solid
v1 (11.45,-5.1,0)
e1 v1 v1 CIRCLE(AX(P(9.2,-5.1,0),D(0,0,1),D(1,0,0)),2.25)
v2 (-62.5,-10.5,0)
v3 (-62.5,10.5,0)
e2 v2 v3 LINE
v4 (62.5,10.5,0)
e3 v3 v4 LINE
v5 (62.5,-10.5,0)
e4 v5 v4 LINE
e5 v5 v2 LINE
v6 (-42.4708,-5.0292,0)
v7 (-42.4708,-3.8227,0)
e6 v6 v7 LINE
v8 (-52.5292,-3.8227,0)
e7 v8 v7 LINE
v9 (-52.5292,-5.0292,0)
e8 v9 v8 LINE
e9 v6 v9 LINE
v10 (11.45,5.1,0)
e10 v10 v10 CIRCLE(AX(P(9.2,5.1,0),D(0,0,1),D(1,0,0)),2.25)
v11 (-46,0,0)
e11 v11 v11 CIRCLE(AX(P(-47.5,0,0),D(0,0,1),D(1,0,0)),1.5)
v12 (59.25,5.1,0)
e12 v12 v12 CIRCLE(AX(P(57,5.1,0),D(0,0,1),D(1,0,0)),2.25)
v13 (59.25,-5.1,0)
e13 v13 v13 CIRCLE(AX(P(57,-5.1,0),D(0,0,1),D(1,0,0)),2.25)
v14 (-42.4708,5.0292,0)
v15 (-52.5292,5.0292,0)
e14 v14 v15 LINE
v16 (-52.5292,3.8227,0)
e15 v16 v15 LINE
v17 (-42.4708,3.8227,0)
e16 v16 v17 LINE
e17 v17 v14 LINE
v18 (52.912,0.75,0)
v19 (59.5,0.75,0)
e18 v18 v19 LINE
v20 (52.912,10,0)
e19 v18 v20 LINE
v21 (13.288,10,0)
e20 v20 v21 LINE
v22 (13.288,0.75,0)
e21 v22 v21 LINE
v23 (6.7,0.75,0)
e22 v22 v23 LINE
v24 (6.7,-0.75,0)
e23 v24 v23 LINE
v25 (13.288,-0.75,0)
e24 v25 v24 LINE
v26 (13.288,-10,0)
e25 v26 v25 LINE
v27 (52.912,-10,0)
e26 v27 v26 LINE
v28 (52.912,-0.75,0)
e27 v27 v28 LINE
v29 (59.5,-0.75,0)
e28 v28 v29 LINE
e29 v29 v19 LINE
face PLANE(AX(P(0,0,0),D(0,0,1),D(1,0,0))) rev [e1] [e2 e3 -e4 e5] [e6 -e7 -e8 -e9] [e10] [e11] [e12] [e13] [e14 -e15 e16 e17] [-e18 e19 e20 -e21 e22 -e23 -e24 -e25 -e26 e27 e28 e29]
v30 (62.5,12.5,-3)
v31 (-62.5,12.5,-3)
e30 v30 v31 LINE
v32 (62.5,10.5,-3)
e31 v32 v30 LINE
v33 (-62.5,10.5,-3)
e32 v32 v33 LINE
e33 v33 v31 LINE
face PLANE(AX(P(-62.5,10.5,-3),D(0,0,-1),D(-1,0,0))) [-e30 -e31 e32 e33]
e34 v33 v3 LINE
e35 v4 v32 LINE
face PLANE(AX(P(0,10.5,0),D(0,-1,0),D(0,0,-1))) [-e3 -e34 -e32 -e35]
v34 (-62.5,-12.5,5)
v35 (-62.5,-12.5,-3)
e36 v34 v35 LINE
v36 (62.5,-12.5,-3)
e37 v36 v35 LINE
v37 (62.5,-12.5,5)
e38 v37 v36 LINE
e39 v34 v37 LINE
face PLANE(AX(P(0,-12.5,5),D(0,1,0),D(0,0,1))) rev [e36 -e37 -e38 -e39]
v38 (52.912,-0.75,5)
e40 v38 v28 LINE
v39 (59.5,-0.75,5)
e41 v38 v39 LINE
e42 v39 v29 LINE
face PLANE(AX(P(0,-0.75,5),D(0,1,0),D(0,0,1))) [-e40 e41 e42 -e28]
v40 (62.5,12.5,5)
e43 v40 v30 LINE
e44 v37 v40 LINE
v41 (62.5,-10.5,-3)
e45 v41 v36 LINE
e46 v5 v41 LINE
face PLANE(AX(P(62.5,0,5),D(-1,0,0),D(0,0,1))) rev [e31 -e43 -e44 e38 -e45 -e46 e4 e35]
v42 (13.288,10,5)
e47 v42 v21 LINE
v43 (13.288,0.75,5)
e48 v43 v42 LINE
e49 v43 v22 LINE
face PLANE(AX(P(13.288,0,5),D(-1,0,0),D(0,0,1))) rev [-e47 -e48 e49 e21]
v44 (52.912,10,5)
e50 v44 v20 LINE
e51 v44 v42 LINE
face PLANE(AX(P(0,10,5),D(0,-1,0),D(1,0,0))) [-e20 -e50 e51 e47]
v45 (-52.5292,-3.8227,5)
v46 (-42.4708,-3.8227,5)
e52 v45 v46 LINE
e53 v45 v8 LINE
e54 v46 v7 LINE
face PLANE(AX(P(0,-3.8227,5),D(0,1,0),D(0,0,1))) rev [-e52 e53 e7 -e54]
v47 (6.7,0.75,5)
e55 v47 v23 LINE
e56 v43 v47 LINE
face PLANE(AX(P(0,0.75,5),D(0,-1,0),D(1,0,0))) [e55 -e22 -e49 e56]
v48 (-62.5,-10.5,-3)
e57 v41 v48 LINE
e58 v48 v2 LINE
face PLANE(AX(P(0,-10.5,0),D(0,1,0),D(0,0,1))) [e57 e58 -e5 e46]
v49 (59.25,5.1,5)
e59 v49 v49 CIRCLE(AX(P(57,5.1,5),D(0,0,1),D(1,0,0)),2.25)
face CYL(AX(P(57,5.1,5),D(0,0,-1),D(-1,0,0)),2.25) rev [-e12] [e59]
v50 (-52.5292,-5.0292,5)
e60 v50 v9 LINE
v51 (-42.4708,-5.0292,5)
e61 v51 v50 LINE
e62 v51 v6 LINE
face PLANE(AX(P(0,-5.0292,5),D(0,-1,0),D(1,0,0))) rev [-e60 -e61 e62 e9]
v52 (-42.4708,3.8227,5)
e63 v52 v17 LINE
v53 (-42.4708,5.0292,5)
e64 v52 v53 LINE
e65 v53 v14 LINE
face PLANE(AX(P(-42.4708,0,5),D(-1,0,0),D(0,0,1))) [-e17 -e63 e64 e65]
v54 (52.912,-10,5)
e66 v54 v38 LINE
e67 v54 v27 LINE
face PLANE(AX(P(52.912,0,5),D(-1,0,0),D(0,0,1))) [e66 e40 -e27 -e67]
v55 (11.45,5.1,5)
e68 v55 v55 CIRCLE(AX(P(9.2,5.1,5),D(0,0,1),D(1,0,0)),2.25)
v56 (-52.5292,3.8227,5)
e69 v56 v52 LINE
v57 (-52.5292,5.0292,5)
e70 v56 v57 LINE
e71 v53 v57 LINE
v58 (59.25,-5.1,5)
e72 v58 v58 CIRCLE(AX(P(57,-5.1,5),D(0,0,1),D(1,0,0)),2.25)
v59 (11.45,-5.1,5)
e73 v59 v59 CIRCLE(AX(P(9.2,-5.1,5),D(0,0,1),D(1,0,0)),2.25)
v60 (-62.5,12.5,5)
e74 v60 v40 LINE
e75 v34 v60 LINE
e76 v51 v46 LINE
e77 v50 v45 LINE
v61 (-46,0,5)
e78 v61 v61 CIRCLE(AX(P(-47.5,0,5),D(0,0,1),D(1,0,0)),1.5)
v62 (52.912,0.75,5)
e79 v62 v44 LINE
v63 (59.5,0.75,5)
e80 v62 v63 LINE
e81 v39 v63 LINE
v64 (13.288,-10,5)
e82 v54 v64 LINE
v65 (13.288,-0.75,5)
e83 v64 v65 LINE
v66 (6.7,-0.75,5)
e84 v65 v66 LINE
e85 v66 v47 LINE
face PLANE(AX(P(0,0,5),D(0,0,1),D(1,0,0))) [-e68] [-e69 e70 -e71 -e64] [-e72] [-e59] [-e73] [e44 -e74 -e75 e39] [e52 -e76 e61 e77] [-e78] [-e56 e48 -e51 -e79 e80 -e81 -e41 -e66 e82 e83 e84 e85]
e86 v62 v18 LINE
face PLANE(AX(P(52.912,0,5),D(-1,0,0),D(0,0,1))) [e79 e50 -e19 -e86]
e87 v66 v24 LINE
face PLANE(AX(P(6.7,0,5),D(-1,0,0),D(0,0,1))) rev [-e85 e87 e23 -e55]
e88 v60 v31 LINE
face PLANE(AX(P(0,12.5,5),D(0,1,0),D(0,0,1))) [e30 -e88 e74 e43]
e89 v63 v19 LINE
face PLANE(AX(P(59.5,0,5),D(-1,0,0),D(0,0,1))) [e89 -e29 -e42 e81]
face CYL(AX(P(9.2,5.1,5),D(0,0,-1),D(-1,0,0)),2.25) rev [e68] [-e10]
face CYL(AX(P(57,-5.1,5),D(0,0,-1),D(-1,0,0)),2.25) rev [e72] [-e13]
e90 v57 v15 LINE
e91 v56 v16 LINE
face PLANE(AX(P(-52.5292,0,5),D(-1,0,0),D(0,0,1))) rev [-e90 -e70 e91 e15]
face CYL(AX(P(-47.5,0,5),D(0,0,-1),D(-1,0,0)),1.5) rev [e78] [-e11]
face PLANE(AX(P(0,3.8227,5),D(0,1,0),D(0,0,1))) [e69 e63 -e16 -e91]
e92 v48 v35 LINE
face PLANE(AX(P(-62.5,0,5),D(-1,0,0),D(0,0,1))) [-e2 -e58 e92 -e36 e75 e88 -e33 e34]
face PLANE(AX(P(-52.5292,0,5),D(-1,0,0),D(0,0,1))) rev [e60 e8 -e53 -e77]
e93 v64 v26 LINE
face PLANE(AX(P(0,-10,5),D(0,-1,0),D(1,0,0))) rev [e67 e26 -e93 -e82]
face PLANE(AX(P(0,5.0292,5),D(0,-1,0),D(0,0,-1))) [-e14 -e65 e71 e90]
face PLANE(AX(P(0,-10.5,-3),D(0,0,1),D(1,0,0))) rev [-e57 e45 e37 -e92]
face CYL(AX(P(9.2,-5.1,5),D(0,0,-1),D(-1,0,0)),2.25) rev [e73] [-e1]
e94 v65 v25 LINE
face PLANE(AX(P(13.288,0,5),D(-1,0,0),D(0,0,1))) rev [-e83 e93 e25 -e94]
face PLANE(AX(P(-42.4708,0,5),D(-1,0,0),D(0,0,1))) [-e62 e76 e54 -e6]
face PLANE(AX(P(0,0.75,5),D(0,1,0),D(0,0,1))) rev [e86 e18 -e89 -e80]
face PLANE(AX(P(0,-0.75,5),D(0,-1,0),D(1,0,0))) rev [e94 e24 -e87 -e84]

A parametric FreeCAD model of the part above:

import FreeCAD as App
import Part
import Sketcher
Q = App.Units.Quantity


def add_polygon(sketch, points):
    """Adds a closed chain of lines whose ends are joined by coincident constraints."""
    first, n = sketch.GeometryCount, len(points)
    for a, b in zip(points, points[1:] + points[:1]):
        sketch.addGeometry(Part.LineSegment(App.Vector(*a, 0), App.Vector(*b, 0)), False)
    for i in range(n):
        sketch.addConstraint(Sketcher.Constraint("Coincident", first + i, 2, first + (i + 1) % n, 1))

doc = App.newDocument("Part")
body = doc.addObject("PartDesign::Body", "Body")

sketch1 = doc.addObject("Sketcher::SketchObject", "Sketch")
body.addObject(sketch1)
sketch1.AttachmentSupport = (doc.XY_Plane, [""])
sketch1.MapMode = "FlatFace"
add_polygon(sketch1, [(-62.5, 12.5), (-62.5, -12.5), (62.5, -12.5), (62.5, 12.5)])
add_polygon(sketch1, [(-42.5, -5), (-52.5, -5), (-52.5, -3.8), (-42.5, -3.8)])
sketch1.addGeometry(Part.Circle(App.Vector(9.2, -5.1, 0), App.Vector(0, 0, 1), 2.2), False)
sketch1.addGeometry(Part.Circle(App.Vector(57, -5.1, 0), App.Vector(0, 0, 1), 2.2), False)
sketch1.addGeometry(Part.Circle(App.Vector(-47.5, 0, 0), App.Vector(0, 0, 1), 1.5), False)
add_polygon(sketch1, [(-52.5, 3.8), (-52.5, 5), (-42.5, 5), (-42.5, 3.8)])
add_polygon(sketch1, [(52.9, -10), (13.3, -10), (13.3, -0.8), (6.7, -0.8), (6.7, 0.8), (13.3, 0.8), (13.3, 10), (52.9, 10), (52.9, 0.8), (59.5, 0.8), (59.5, -0.8), (52.9, -0.8)])
sketch1.addGeometry(Part.Circle(App.Vector(9.2, 5.1, 0), App.Vector(0, 0, 1), 2.2), False)
sketch1.addGeometry(Part.Circle(App.Vector(57, 5.1, 0), App.Vector(0, 0, 1), 2.2), False)
sketch1.addConstraint(Sketcher.Constraint("Vertical", 0))
sketch1.addConstraint(Sketcher.Constraint("Horizontal", 1))
sketch1.addConstraint(Sketcher.Constraint("Vertical", 2))
sketch1.addConstraint(Sketcher.Constraint("Horizontal", 3))
sketch1.addConstraint(Sketcher.Constraint("Horizontal", 4))
sketch1.addConstraint(Sketcher.Constraint("Vertical", 5))
sketch1.addConstraint(Sketcher.Constraint("Horizontal", 6))
sketch1.addConstraint(Sketcher.Constraint("Vertical", 7))
sketch1.addConstraint(Sketcher.Constraint("Vertical", 11))
sketch1.addConstraint(Sketcher.Constraint("Horizontal", 12))
sketch1.addConstraint(Sketcher.Constraint("Vertical", 13))
sketch1.addConstraint(Sketcher.Constraint("Horizontal", 14))
sketch1.addConstraint(Sketcher.Constraint("Horizontal", 15))
sketch1.addConstraint(Sketcher.Constraint("Vertical", 16))
sketch1.addConstraint(Sketcher.Constraint("Horizontal", 17))
sketch1.addConstraint(Sketcher.Constraint("Vertical", 18))
sketch1.addConstraint(Sketcher.Constraint("Horizontal", 19))
sketch1.addConstraint(Sketcher.Constraint("Vertical", 20))
sketch1.addConstraint(Sketcher.Constraint("Horizontal", 21))
sketch1.addConstraint(Sketcher.Constraint("Vertical", 22))
sketch1.addConstraint(Sketcher.Constraint("Horizontal", 23))
sketch1.addConstraint(Sketcher.Constraint("Vertical", 24))
sketch1.addConstraint(Sketcher.Constraint("Horizontal", 25))
sketch1.addConstraint(Sketcher.Constraint("Vertical", 26))
sketch1.addConstraint(Sketcher.Constraint("Equal", 8, 9))
sketch1.addConstraint(Sketcher.Constraint("Equal", 9, 27))
sketch1.addConstraint(Sketcher.Constraint("Equal", 27, 28))
sketch1.addConstraint(Sketcher.Constraint("Symmetric", 0, 2, 2, 2, -1, 1))
sketch1.addConstraint(Sketcher.Constraint("Symmetric", 8, 3, 27, 3, -1))
sketch1.addConstraint(Sketcher.Constraint("Symmetric", 9, 3, 28, 3, -1))
sketch1.addConstraint(Sketcher.Constraint("Symmetric", 4, 2, 11, 2, -1))
sketch1.addConstraint(Sketcher.Constraint("Symmetric", 6, 2, 13, 2, -1))
sketch1.addConstraint(Sketcher.Constraint("Symmetric", 16, 2, 19, 2, -1))
sketch1.addConstraint(Sketcher.Constraint("Symmetric", 22, 2, 25, 2, -1))
sketch1.addConstraint(Sketcher.Constraint("PointOnObject", 10, 3, -1))
sketch1.addConstraint(Sketcher.Constraint("Horizontal", 8, 3, 9, 3))
sketch1.addConstraint(Sketcher.Constraint("Horizontal", 19, 2, 22, 2))
sketch1.addConstraint(Sketcher.Constraint("Equal", 19, 23))
sketch1.addConstraint(Sketcher.Constraint("Equal", 16, 20))
sketch1.addConstraint(Sketcher.Constraint("Diameter", 10, Q("3 mm")))
sketch1.addConstraint(Sketcher.Constraint("Diameter", 8, Q("4.5 mm")))
sketch1.addConstraint(Sketcher.Constraint("DistanceX", 1, 1, 1, 2, Q("125 mm")))
sketch1.addConstraint(Sketcher.Constraint("DistanceY", 0, 2, 0, 1, Q("25 mm")))
sketch1.addConstraint(Sketcher.Constraint("DistanceY", 18, 1, 18, 2, Q("1.5 mm")))
sketch1.addConstraint(Sketcher.Constraint("DistanceX", -1, 1, 9, 3, Q("57 mm")))
sketch1.addConstraint(Sketcher.Constraint("DistanceY", 15, 2, -1, 1, Q("10 mm")))
sketch1.addConstraint(Sketcher.Constraint("DistanceX", 0, 2, 10, 3, Q("15 mm")))
sketch1.addConstraint(Sketcher.Constraint("DistanceX", 23, 2, 2, 2, Q("3 mm")))
sketch1.addConstraint(Sketcher.Constraint("DistanceX", -1, 1, 8, 3, Q("9.2 mm")))
sketch1.addConstraint(Sketcher.Constraint("DistanceY", 8, 3, -1, 1, Q("5.1 mm")))
sketch1.addConstraint(Sketcher.Constraint("DistanceX", -1, 1, 17, 2, Q("6.7 mm")))
sketch1.addConstraint(Sketcher.Constraint("DistanceX", 15, 2, 15, 1, Q("39.624 mm")))
sketch1.addConstraint(Sketcher.Constraint("DistanceX", 4, 2, 4, 1, Q("10.0584 mm")))
sketch1.addConstraint(Sketcher.Constraint("DistanceY", 5, 1, 5, 2, Q("1.2065 mm")))
sketch1.addConstraint(Sketcher.Constraint("DistanceX", 4, 2, -1, 1, Q("52.5292 mm")))
sketch1.addConstraint(Sketcher.Constraint("DistanceY", 4, 2, -1, 1, Q("5.0292 mm")))
pad1 = doc.addObject("PartDesign::Pad", "Pad")
body.addObject(pad1)
pad1.Profile = sketch1
pad1.Length = 5

sketch2 = doc.addObject("Sketcher::SketchObject", "Sketch001")
body.addObject(sketch2)
sketch2.AttachmentSupport = (doc.XZ_Plane, [""])
sketch2.MapMode = "FlatFace"
sketch2.AttachmentOffset = App.Placement(App.Vector(0, 0, -12.5), App.Rotation())
add_polygon(sketch2, [(-62, -3), (-62, 5), (62, 5), (62, -3)])
sketch2.addConstraint(Sketcher.Constraint("Vertical", 0))
sketch2.addConstraint(Sketcher.Constraint("Horizontal", 1))
sketch2.addConstraint(Sketcher.Constraint("Vertical", 2))
sketch2.addConstraint(Sketcher.Constraint("Horizontal", 3))
sketch2.addConstraint(Sketcher.Constraint("DistanceX", 1, 1, 1, 2, Q("125 mm")))
sketch2.addConstraint(Sketcher.Constraint("DistanceY", 0, 1, 0, 2, Q("8 mm")))
sketch2.addConstraint(Sketcher.Constraint("DistanceY", -1, 1, 0, 2, Q("5 mm")))
sketch2.addConstraint(Sketcher.Constraint("DistanceX", 0, 2, -1, 1, Q("62.5 mm")))
pad2 = doc.addObject("PartDesign::Pad", "Pad001")
body.addObject(pad2)
pad2.Profile = sketch2
pad2.Length = 2

sketch3 = doc.addObject("Sketcher::SketchObject", "Sketch002")
body.addObject(sketch3)
sketch3.AttachmentSupport = (doc.XZ_Plane, [""])
sketch3.MapMode = "FlatFace"
sketch3.AttachmentOffset = App.Placement(App.Vector(0, 0, 12.5), App.Rotation())
add_polygon(sketch3, [(-62, -3), (-62, 5), (62, 5), (62, -3)])
sketch3.addConstraint(Sketcher.Constraint("Vertical", 0))
sketch3.addConstraint(Sketcher.Constraint("Horizontal", 1))
sketch3.addConstraint(Sketcher.Constraint("Vertical", 2))
sketch3.addConstraint(Sketcher.Constraint("Horizontal", 3))
sketch3.addConstraint(Sketcher.Constraint("DistanceX", 1, 1, 1, 2, Q("125 mm")))
sketch3.addConstraint(Sketcher.Constraint("DistanceY", 0, 1, 0, 2, Q("8 mm")))
sketch3.addConstraint(Sketcher.Constraint("DistanceY", -1, 1, 0, 2, Q("5 mm")))
sketch3.addConstraint(Sketcher.Constraint("DistanceX", 0, 2, -1, 1, Q("62.5 mm")))
pad3 = doc.addObject("PartDesign::Pad", "Pad002")
body.addObject(pad3)
pad3.Profile = sketch3
pad3.Length = 2
pad3.Reversed = True

doc.recompute()
